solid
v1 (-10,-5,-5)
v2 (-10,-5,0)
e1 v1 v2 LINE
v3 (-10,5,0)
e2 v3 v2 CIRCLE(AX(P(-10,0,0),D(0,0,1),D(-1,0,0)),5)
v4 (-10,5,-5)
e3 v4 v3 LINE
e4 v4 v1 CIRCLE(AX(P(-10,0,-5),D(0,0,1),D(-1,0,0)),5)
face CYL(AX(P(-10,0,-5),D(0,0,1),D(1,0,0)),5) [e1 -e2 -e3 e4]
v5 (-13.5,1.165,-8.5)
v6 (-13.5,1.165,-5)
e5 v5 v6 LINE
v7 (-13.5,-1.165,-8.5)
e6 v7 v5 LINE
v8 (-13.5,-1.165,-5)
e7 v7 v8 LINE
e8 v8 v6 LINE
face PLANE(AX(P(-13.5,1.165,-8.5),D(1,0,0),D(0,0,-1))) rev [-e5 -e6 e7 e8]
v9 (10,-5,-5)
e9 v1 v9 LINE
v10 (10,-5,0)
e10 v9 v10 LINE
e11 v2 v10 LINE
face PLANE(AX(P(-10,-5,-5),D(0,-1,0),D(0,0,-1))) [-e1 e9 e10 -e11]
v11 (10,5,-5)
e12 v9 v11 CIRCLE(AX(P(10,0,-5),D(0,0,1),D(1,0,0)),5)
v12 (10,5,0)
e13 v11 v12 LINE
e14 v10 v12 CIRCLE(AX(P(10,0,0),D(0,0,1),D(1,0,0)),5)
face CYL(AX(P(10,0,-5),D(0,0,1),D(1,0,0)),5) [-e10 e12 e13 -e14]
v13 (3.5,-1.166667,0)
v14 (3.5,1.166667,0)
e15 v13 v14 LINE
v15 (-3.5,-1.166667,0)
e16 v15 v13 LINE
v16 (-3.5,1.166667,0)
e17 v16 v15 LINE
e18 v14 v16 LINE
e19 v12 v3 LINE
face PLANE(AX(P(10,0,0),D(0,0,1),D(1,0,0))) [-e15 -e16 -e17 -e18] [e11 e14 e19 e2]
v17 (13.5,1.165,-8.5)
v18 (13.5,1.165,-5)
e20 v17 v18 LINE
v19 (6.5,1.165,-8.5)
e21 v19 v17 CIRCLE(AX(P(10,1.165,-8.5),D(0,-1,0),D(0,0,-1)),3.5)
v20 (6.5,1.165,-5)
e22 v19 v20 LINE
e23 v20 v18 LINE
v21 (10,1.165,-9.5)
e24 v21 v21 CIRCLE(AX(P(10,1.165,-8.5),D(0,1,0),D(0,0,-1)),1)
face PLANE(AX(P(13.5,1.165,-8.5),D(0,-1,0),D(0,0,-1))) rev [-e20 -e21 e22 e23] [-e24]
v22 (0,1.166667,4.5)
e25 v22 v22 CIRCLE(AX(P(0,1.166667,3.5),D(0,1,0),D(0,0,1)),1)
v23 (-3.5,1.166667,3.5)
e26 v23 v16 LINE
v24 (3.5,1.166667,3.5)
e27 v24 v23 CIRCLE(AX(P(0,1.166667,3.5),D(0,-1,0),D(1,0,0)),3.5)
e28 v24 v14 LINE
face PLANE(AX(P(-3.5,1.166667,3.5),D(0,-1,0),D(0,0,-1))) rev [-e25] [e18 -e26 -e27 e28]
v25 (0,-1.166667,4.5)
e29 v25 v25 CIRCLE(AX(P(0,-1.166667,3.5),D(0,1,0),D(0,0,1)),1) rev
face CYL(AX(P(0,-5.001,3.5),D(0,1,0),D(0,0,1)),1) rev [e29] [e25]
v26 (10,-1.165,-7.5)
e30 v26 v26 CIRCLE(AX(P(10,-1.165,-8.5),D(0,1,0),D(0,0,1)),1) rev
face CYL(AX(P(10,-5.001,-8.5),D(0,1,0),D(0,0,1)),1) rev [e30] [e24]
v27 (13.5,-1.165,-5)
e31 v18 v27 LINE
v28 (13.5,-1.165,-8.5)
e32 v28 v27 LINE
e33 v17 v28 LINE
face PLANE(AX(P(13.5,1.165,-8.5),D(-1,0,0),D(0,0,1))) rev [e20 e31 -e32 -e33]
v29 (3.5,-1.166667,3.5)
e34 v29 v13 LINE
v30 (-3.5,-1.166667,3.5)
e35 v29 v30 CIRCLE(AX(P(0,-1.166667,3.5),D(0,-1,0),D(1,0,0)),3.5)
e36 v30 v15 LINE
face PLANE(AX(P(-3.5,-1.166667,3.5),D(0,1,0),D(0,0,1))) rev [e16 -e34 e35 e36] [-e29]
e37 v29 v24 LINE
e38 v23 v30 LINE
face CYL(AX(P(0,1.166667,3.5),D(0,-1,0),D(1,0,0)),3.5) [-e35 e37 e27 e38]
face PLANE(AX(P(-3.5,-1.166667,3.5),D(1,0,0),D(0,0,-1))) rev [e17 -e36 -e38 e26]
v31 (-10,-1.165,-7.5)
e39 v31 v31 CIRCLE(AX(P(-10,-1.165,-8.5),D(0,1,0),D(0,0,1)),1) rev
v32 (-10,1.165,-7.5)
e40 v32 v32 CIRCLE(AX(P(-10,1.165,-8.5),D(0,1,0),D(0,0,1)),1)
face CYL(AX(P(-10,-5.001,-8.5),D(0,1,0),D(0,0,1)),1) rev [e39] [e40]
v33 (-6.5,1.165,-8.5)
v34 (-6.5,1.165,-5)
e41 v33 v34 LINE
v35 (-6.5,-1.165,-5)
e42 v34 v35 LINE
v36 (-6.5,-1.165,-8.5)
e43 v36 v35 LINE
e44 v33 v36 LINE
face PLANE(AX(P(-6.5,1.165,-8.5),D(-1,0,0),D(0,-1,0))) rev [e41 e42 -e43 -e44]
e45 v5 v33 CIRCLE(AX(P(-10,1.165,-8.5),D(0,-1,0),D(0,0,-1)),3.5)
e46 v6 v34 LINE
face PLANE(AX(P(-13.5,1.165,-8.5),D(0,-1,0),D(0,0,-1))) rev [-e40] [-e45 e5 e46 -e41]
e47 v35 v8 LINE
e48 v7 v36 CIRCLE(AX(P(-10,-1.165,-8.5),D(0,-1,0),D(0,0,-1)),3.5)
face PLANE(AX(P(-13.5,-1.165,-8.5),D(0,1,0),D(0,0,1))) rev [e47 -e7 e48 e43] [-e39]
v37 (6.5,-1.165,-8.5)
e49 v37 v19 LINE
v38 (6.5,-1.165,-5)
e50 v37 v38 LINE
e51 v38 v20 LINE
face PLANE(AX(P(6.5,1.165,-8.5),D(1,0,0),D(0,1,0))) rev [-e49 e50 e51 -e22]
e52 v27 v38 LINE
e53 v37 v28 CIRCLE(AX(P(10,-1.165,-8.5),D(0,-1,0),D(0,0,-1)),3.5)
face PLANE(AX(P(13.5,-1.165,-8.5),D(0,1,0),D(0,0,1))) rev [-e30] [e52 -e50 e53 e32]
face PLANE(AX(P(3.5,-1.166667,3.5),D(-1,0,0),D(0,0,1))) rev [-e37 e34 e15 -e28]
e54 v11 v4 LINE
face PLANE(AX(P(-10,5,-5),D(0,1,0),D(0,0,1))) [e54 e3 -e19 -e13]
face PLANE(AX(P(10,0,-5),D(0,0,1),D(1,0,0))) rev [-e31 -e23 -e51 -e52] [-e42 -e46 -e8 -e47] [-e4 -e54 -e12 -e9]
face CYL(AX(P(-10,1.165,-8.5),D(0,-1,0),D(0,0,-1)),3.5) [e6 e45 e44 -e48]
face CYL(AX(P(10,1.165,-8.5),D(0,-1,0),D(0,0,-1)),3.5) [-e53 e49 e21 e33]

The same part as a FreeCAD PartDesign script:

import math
import FreeCAD as App
import Part
import Sketcher
from FreeCAD import Vector
Q = App.Units.Quantity

doc = App.newDocument("Part")
body = doc.addObject("PartDesign::Body", "Body")

# Sketch on XY plane
sketch1 = body.newObject("Sketcher::SketchObject", "Sketch")
sketch1.AttachmentSupport = (doc.getObject("XY_Plane"), [""])
sketch1.MapMode = "FlatFace"
sketch1.addGeometry([
    Part.LineSegment(Vector(-10, -5, 0), Vector(10, -5, 0)),
    Part.ArcOfCircle(Part.Circle(Vector(10, 0, 0), Vector(0, 0, 1), 5), math.radians(-90), math.radians(90)),
    Part.LineSegment(Vector(10, 5, 0), Vector(-10, 5, 0)),
    Part.ArcOfCircle(Part.Circle(Vector(-10, 0, 0), Vector(0, 0, 1), 5), math.radians(90), math.radians(270)),
], False)
sketch1.addConstraint([
    Sketcher.Constraint("Tangent", 0, 2, 1, 1),
    Sketcher.Constraint("Tangent", 1, 2, 2, 1),
    Sketcher.Constraint("Tangent", 2, 2, 3, 1),
    Sketcher.Constraint("Tangent", 3, 2, 0, 1),
    Sketcher.Constraint("Horizontal", 0),
    Sketcher.Constraint("Horizontal", 2),
    Sketcher.Constraint("Symmetric", 1, 3, 3, 3, -1, 1),
    Sketcher.Constraint("Radius", 1, Q("5 mm")),
    Sketcher.Constraint("DistanceX", 0, 1, 0, 2, Q("20 mm")),
])
pad1 = body.newObject("PartDesign::Pad", "Pad")
pad1.Profile = sketch1
pad1.Length = 5
pad1.Reversed = True

# Sketch on XY plane
sketch2 = body.newObject("Sketcher::SketchObject", "Sketch001")
sketch2.AttachmentSupport = (doc.getObject("XY_Plane"), [""])
sketch2.MapMode = "FlatFace"
sketch2.addGeometry([
    Part.LineSegment(Vector(-3.5, 1.166667, 0), Vector(-3.5, -1.166667, 0)),
    Part.LineSegment(Vector(-3.5, -1.166667, 0), Vector(3.5, -1.166667, 0)),
    Part.LineSegment(Vector(3.5, -1.166667, 0), Vector(3.5, 1.166667, 0)),
    Part.LineSegment(Vector(3.5, 1.166667, 0), Vector(-3.5, 1.166667, 0)),
], False)
sketch2.addConstraint([
    Sketcher.Constraint("Coincident", 0, 2, 1, 1),
    Sketcher.Constraint("Coincident", 1, 2, 2, 1),
    Sketcher.Constraint("Coincident", 2, 2, 3, 1),
    Sketcher.Constraint("Coincident", 3, 2, 0, 1),
    Sketcher.Constraint("Vertical", 0),
    Sketcher.Constraint("Horizontal", 1),
    Sketcher.Constraint("Vertical", 2),
    Sketcher.Constraint("Horizontal", 3),
    Sketcher.Constraint("Symmetric", 0, 2, 2, 2, -1, 1),
    Sketcher.Constraint("DistanceX", 1, 1, 1, 2, Q("7 mm")),
    Sketcher.Constraint("DistanceY", 0, 2, 0, 1, Q("2.333333 mm")),
])
pad2 = body.newObject("PartDesign::Pad", "Pad001")
pad2.Profile = sketch2
pad2.Length = 3.5

# Sketch on XY plane
sketch3 = body.newObject("Sketcher::SketchObject", "Sketch002")
sketch3.AttachmentSupport = (doc.getObject("XY_Plane"), [""])
sketch3.MapMode = "FlatFace"
sketch3.AttachmentOffset = App.Placement(Vector(0, 0, 3.5), App.Rotation())
sketch3.addGeometry([
    Part.LineSegment(Vector(-3.5, 1.166667, 0), Vector(-3.5, -1.166667, 0)),
    Part.LineSegment(Vector(-3.5, -1.166667, 0), Vector(0, -1.166667, 0)),
    Part.LineSegment(Vector(0, -1.166667, 0), Vector(0, 1.166667, 0)),
    Part.LineSegment(Vector(0, 1.166667, 0), Vector(-3.5, 1.166667, 0)),
], False)
sketch3.addConstraint([
    Sketcher.Constraint("Coincident", 0, 2, 1, 1),
    Sketcher.Constraint("Coincident", 1, 2, 2, 1),
    Sketcher.Constraint("Coincident", 2, 2, 3, 1),
    Sketcher.Constraint("Coincident", 3, 2, 0, 1),
    Sketcher.Constraint("Vertical", 0),
    Sketcher.Constraint("Horizontal", 1),
    Sketcher.Constraint("Vertical", 2),
    Sketcher.Constraint("Horizontal", 3),
    Sketcher.Constraint("Symmetric", 1, 2, 2, 2, -1, 1),
    Sketcher.Constraint("DistanceX", 1, 1, 1, 2, Q("3.5 mm")),
    Sketcher.Constraint("DistanceY", 0, 2, 0, 1, Q("2.333333 mm")),
])
revolution = body.newObject("PartDesign::Revolution", "Revolution")
revolution.Profile = sketch3
revolution.ReferenceAxis = (sketch3, ["V_Axis"])
revolution.Angle = 180

# Sketch on XZ plane
sketch4 = body.newObject("Sketcher::SketchObject", "Sketch003")
sketch4.AttachmentSupport = (doc.getObject("XZ_Plane"), [""])
sketch4.MapMode = "FlatFace"
sketch4.AttachmentOffset = App.Placement(Vector(0, 0, -1.166667), App.Rotation())
sketch4.addGeometry(Part.Circle(Vector(0, 3.5, 0), Vector(0, 0, 1), 1), False)
sketch4.addConstraint([
    Sketcher.Constraint("PointOnObject", 0, 3, -2),
    Sketcher.Constraint("Diameter", 0, Q("2 mm")),
    Sketcher.Constraint("DistanceY", -1, 1, 0, 3, Q("3.5 mm")),
])
pocket1 = body.newObject("PartDesign::Pocket", "Pocket")
pocket1.Profile = sketch4
pocket1.Type = "UpToFirst"
pocket1.Reversed = True

# Sketch on XY plane
sketch5 = body.newObject("Sketcher::SketchObject", "Sketch004")
sketch5.AttachmentSupport = (doc.getObject("XY_Plane"), [""])
sketch5.MapMode = "FlatFace"
sketch5.AttachmentOffset = App.Placement(Vector(0, 0, -5), App.Rotation())
sketch5.addGeometry([
    Part.LineSegment(Vector(13.5, 1.165, 0), Vector(13.5, -1.165, 0)),  # 0
    Part.LineSegment(Vector(13.5, -1.165, 0), Vector(6.5, -1.165, 0)),  # 1
    Part.LineSegment(Vector(6.5, -1.165, 0), Vector(6.5, 1.165, 0)),  # 2
    Part.LineSegment(Vector(6.5, 1.165, 0), Vector(13.5, 1.165, 0)),  # 3
    Part.LineSegment(Vector(-6.5, 1.165, 0), Vector(-6.5, -1.165, 0)),  # 4
    Part.LineSegment(Vector(-6.5, -1.165, 0), Vector(-13.5, -1.165, 0)),  # 5
    Part.LineSegment(Vector(-13.5, -1.165, 0), Vector(-13.5, 1.165, 0)),  # 6
    Part.LineSegment(Vector(-13.5, 1.165, 0), Vector(-6.5, 1.165, 0)),  # 7
], False)
sketch5.addConstraint([
    Sketcher.Constraint("Coincident", 0, 2, 1, 1),
    Sketcher.Constraint("Coincident", 1, 2, 2, 1),
    Sketcher.Constraint("Coincident", 2, 2, 3, 1),
    Sketcher.Constraint("Coincident", 3, 2, 0, 1),
    Sketcher.Constraint("Coincident", 4, 2, 5, 1),
    Sketcher.Constraint("Coincident", 5, 2, 6, 1),
    Sketcher.Constraint("Coincident", 6, 2, 7, 1),
    Sketcher.Constraint("Coincident", 7, 2, 4, 1),
    Sketcher.Constraint("Vertical", 0),
    Sketcher.Constraint("Horizontal", 1),
    Sketcher.Constraint("Vertical", 2),
    Sketcher.Constraint("Horizontal", 3),
    Sketcher.Constraint("Vertical", 4),
    Sketcher.Constraint("Horizontal", 5),
    Sketcher.Constraint("Vertical", 6),
    Sketcher.Constraint("Horizontal", 7),
    Sketcher.Constraint("Symmetric", 2, 2, 4, 2, -1, 1),
    Sketcher.Constraint("Symmetric", 0, 2, 6, 2, -1, 1),
    Sketcher.Constraint("Horizontal", 1, 2, 4, 2),
    Sketcher.Constraint("DistanceX", 1, 2, 1, 1, Q("7 mm")),
    Sketcher.Constraint("DistanceX", 4, 2, 1, 2, Q("13 mm")),
    Sketcher.Constraint("DistanceY", 0, 2, 0, 1, Q("2.33 mm")),
])
pad3 = body.newObject("PartDesign::Pad", "Pad002")
pad3.Profile = sketch5
pad3.Length = 3.5
pad3.Reversed = True

# Sketch on XY plane
sketch6 = body.newObject("Sketcher::SketchObject", "Sketch005")
sketch6.AttachmentSupport = (doc.getObject("XY_Plane"), [""])
sketch6.MapMode = "FlatFace"
sketch6.AttachmentOffset = App.Placement(Vector(0, 0, -8.5), App.Rotation())
sketch6.addGeometry([
    Part.LineSegment(Vector(13.5, 1.165, 0), Vector(13.5, -1.165, 0)),
    Part.LineSegment(Vector(13.5, -1.165, 0), Vector(10, -1.165, 0)),
    Part.LineSegment(Vector(10, -1.165, 0), Vector(10, 1.165, 0)),
    Part.LineSegment(Vector(10, 1.165, 0), Vector(13.5, 1.165, 0)),
], False)
sketch6.addGeometry(Part.LineSegment(Vector(10, -1.165, 0), Vector(10, 1.165, 0)), True)  # axis
sketch6.addConstraint([
    Sketcher.Constraint("Coincident", 0, 2, 1, 1),
    Sketcher.Constraint("Coincident", 1, 2, 2, 1),
    Sketcher.Constraint("Coincident", 2, 2, 3, 1),
    Sketcher.Constraint("Coincident", 3, 2, 0, 1),
    Sketcher.Constraint("Vertical", 0),
    Sketcher.Constraint("Horizontal", 1),
    Sketcher.Constraint("Vertical", 2),
    Sketcher.Constraint("Horizontal", 3),
    Sketcher.Constraint("Vertical", 4),
    Sketcher.Constraint("Coincident", 4, 1, 1, 2),
    Sketcher.Constraint("Horizontal", 3, 2, 4, 2),
    Sketcher.Constraint("DistanceX", 1, 2, 1, 1, Q("3.5 mm")),
    Sketcher.Constraint("DistanceX", -1, 1, 1, 2, Q("10 mm")),
    Sketcher.Constraint("DistanceY", 0, 2, 0, 1, Q("2.33 mm")),
    Sketcher.Constraint("DistanceY", 0, 2, -1, 1, Q("1.165 mm")),
])
revolution2 = body.newObject("PartDesign::Revolution", "Revolution001")
revolution2.Profile = sketch6
revolution2.ReferenceAxis = (sketch6, ["Axis0"])
revolution2.Angle = 180

# Sketch on XY plane
sketch7 = body.newObject("Sketcher::SketchObject", "Sketch006")
sketch7.AttachmentSupport = (doc.getObject("XY_Plane"), [""])
sketch7.MapMode = "FlatFace"
sketch7.AttachmentOffset = App.Placement(Vector(0, 0, -8.5), App.Rotation())
sketch7.addGeometry([
    Part.LineSegment(Vector(-6.5, 1.165, 0), Vector(-6.5, -1.165, 0)),
    Part.LineSegment(Vector(-6.5, -1.165, 0), Vector(-10, -1.165, 0)),
    Part.LineSegment(Vector(-10, -1.165, 0), Vector(-10, 1.165, 0)),
    Part.LineSegment(Vector(-10, 1.165, 0), Vector(-6.5, 1.165, 0)),
], False)
sketch7.addGeometry(Part.LineSegment(Vector(-10, -1.165, 0), Vector(-10, 1.165, 0)), True)  # axis
sketch7.addConstraint([
    Sketcher.Constraint("Coincident", 0, 2, 1, 1),
    Sketcher.Constraint("Coincident", 1, 2, 2, 1),
    Sketcher.Constraint("Coincident", 2, 2, 3, 1),
    Sketcher.Constraint("Coincident", 3, 2, 0, 1),
    Sketcher.Constraint("Vertical", 0),
    Sketcher.Constraint("Horizontal", 1),
    Sketcher.Constraint("Vertical", 2),
    Sketcher.Constraint("Horizontal", 3),
    Sketcher.Constraint("Vertical", 4),
    Sketcher.Constraint("Coincident", 4, 1, 1, 2),
    Sketcher.Constraint("Horizontal", 3, 2, 4, 2),
    Sketcher.Constraint("DistanceX", 1, 2, 1, 1, Q("3.5 mm")),
    Sketcher.Constraint("DistanceX", 1, 2, -1, 1, Q("10 mm")),
    Sketcher.Constraint("DistanceY", 0, 2, 0, 1, Q("2.33 mm")),
    Sketcher.Constraint("DistanceY", 0, 2, -1, 1, Q("1.165 mm")),
])
revolution3 = body.newObject("PartDesign::Revolution", "Revolution002")
revolution3.Profile = sketch7
revolution3.ReferenceAxis = (sketch7, ["Axis0"])
revolution3.Angle = 180

# Sketch on XZ plane
sketch8 = body.newObject("Sketcher::SketchObject", "Sketch007")
sketch8.AttachmentSupport = (doc.getObject("XZ_Plane"), [""])
sketch8.MapMode = "FlatFace"
sketch8.AttachmentOffset = App.Placement(Vector(0, 0, -1.165), App.Rotation())
sketch8.addGeometry(Part.Circle(Vector(-10, -8.5, 0), Vector(0, 0, 1), 1), False)
sketch8.addConstraint([
    Sketcher.Constraint("Diameter", 0, Q("2 mm")),
    Sketcher.Constraint("DistanceX", 0, 3, -1, 1, Q("10 mm")),
    Sketcher.Constraint("DistanceY", 0, 3, -1, 1, Q("8.5 mm")),
])
pocket2 = body.newObject("PartDesign::Pocket", "Pocket001")
pocket2.Profile = sketch8
pocket2.Type = "UpToFirst"
pocket2.Reversed = True

# Sketch on XZ plane
sketch9 = body.newObject("Sketcher::SketchObject", "Sketch008")
sketch9.AttachmentSupport = (doc.getObject("XZ_Plane"), [""])
sketch9.MapMode = "FlatFace"
sketch9.AttachmentOffset = App.Placement(Vector(0, 0, -1.165), App.Rotation())
sketch9.addGeometry(Part.Circle(Vector(10, -8.5, 0), Vector(0, 0, 1), 1), False)
sketch9.addConstraint([
    Sketcher.Constraint("Diameter", 0, Q("2 mm")),
    Sketcher.Constraint("DistanceX", -1, 1, 0, 3, Q("10 mm")),
    Sketcher.Constraint("DistanceY", 0, 3, -1, 1, Q("8.5 mm")),
])
pocket3 = body.newObject("PartDesign::Pocket", "Pocket002")
pocket3.Profile = sketch9
pocket3.Type = "UpToFirst"
pocket3.Reversed = True

doc.recompute()
